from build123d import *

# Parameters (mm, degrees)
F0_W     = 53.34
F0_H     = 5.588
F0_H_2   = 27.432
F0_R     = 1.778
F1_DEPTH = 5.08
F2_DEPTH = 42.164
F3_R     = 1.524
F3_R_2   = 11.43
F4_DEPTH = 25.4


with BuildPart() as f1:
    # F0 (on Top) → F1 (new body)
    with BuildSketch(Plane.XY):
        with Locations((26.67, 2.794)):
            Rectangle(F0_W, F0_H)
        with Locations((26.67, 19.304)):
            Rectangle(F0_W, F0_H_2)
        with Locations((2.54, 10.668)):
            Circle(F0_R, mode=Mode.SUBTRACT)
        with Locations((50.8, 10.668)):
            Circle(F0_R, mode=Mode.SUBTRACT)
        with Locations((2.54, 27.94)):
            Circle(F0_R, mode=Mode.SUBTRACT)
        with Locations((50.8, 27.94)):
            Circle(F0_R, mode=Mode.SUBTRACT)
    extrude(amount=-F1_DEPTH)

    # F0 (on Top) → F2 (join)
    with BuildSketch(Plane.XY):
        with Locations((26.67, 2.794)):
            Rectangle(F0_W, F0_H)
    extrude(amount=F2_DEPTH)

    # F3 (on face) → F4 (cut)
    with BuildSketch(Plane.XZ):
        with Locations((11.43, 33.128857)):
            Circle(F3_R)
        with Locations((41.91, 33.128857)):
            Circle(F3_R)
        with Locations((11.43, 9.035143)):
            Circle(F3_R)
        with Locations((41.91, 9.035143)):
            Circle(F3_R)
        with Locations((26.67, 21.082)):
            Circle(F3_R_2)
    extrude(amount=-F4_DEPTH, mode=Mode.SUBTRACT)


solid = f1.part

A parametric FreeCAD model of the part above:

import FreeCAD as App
import Part
import Sketcher

V = App.Vector
Q = App.Units.Quantity


def add_polygon(sketch, points):
    """Adds a closed chain of lines whose ends are joined by coincident constraints."""
    first, n = sketch.GeometryCount, len(points)
    for a, b in zip(points, points[1:] + points[:1]):
        sketch.addGeometry(Part.LineSegment(App.Vector(*a, 0), App.Vector(*b, 0)), False)
    for i in range(n):
        sketch.addConstraint(Sketcher.Constraint("Coincident", first + i, 2, first + (i + 1) % n, 1))

doc = App.newDocument("Part")
body = doc.addObject("PartDesign::Body", "Body")

sketch1 = body.newObject("Sketcher::SketchObject", "Sketch")
sketch1.AttachmentSupport = (doc.getObject("XY_Plane"), [""])
sketch1.MapMode = "FlatFace"
add_polygon(sketch1, [(0, 0), (53.34, 0), (53.34, 33.02), (0, 33.02)])
sketch1.addGeometry(Part.Circle(V(2.54, 10.668, 0), V(0, 0, 1), 1.778), False)
sketch1.addGeometry(Part.Circle(V(50.8, 10.668, 0), V(0, 0, 1), 1.778), False)
sketch1.addGeometry(Part.Circle(V(2.54, 27.94, 0), V(0, 0, 1), 1.778), False)
sketch1.addGeometry(Part.Circle(V(50.8, 27.94, 0), V(0, 0, 1), 1.778), False)
sketch1.addConstraint(Sketcher.Constraint("Horizontal", 0))
sketch1.addConstraint(Sketcher.Constraint("Vertical", 1))
sketch1.addConstraint(Sketcher.Constraint("Horizontal", 2))
sketch1.addConstraint(Sketcher.Constraint("Vertical", 3))
sketch1.addConstraint(Sketcher.Constraint("Coincident", 3, 2, -1, 1))
sketch1.addConstraint(Sketcher.Constraint("Equal", 4, 5))
sketch1.addConstraint(Sketcher.Constraint("Equal", 5, 6))
sketch1.addConstraint(Sketcher.Constraint("Equal", 6, 7))
sketch1.addConstraint(Sketcher.Constraint("Horizontal", 4, 3, 5, 3))
sketch1.addConstraint(Sketcher.Constraint("Horizontal", 6, 3, 7, 3))
sketch1.addConstraint(Sketcher.Constraint("Vertical", 4, 3, 6, 3))
sketch1.addConstraint(Sketcher.Constraint("Vertical", 5, 3, 7, 3))
sketch1.addConstraint(Sketcher.Constraint("Diameter", 4, Q("0.14 in")))
sketch1.addConstraint(Sketcher.Constraint("DistanceX", 0, 1, 0, 2, Q("2.1 in")))
sketch1.addConstraint(Sketcher.Constraint("DistanceY", 1, 1, 1, 2, Q("1.3 in")))
sketch1.addConstraint(Sketcher.Constraint("DistanceX", -1, 1, 5, 3, Q("2 in")))
sketch1.addConstraint(Sketcher.Constraint("DistanceX", 4, 3, 0, 2, Q("2 in")))
sketch1.addConstraint(Sketcher.Constraint("DistanceY", -1, 1, 6, 3, Q("1.1 in")))
sketch1.addConstraint(Sketcher.Constraint("DistanceY", -1, 1, 4, 3, Q("0.42 in")))
pad1 = body.newObject("PartDesign::Pad", "Pad")
pad1.Profile = sketch1
pad1.Length = Q("0.2 in")
pad1.Reversed = True

sketch2 = body.newObject("Sketcher::SketchObject", "Sketch001")
sketch2.AttachmentSupport = (doc.getObject("XY_Plane"), [""])
sketch2.MapMode = "FlatFace"
add_polygon(sketch2, [(0, 5.588), (0, 0), (53.34, 0), (53.34, 5.588)])
sketch2.addConstraint(Sketcher.Constraint("Vertical", 0))
sketch2.addConstraint(Sketcher.Constraint("Horizontal", 1))
sketch2.addConstraint(Sketcher.Constraint("Vertical", 2))
sketch2.addConstraint(Sketcher.Constraint("Horizontal", 3))
sketch2.addConstraint(Sketcher.Constraint("Coincident", 0, 2, -1, 1))
sketch2.addConstraint(Sketcher.Constraint("DistanceX", 1, 1, 1, 2, Q("2.1 in")))
sketch2.addConstraint(Sketcher.Constraint("DistanceY", 0, 2, 0, 1, Q("0.22 in")))
pad2 = body.newObject("PartDesign::Pad", "Pad001")
pad2.Profile = sketch2
pad2.Length = Q("1.66 in")

sketch3 = body.newObject("Sketcher::SketchObject", "Sketch002")
sketch3.AttachmentSupport = (doc.getObject("XZ_Plane"), [""])
sketch3.MapMode = "FlatFace"
sketch3.addGeometry(Part.Circle(V(11.43, 33.128857, 0), V(0, 0, 1), 1.524), False)
sketch3.addGeometry(Part.Circle(V(41.91, 33.128857, 0), V(0, 0, 1), 1.524), False)
sketch3.addGeometry(Part.Circle(V(11.43, 9.035143, 0), V(0, 0, 1), 1.524), False)
sketch3.addGeometry(Part.Circle(V(41.91, 9.035143, 0), V(0, 0, 1), 1.524), False)
sketch3.addGeometry(Part.Circle(V(26.67, 21.082, 0), V(0, 0, 1), 11.43), False)
sketch3.addConstraint(Sketcher.Constraint("Equal", 0, 1))
sketch3.addConstraint(Sketcher.Constraint("Equal", 1, 2))
sketch3.addConstraint(Sketcher.Constraint("Equal", 2, 3))
sketch3.addConstraint(Sketcher.Constraint("Horizontal", 0, 3, 1, 3))
sketch3.addConstraint(Sketcher.Constraint("Horizontal", 2, 3, 3, 3))
sketch3.addConstraint(Sketcher.Constraint("Vertical", 0, 3, 2, 3))
sketch3.addConstraint(Sketcher.Constraint("Vertical", 1, 3, 3, 3))
sketch3.addConstraint(Sketcher.Constraint("Diameter", 4, Q("0.9 in")))
sketch3.addConstraint(Sketcher.Constraint("Diameter", 0, Q("0.12 in")))
sketch3.addConstraint(Sketcher.Constraint("DistanceX", 0, 3, 1, 3, Q("1.2 in")))
sketch3.addConstraint(Sketcher.Constraint("DistanceX", 4, 3, 3, 3, Q("0.6 in")))
sketch3.addConstraint(Sketcher.Constraint("DistanceX", -1, 1, 0, 3, Q("0.45 in")))
sketch3.addConstraint(Sketcher.Constraint("DistanceY", -1, 1, 4, 3, Q("0.83 in")))
sketch3.addConstraint(Sketcher.Constraint("DistanceY", -1, 1, 0, 3, Q("33.128857 mm")))
sketch3.addConstraint(Sketcher.Constraint("DistanceY", -1, 1, 2, 3, Q("9.035143 mm")))
pocket1 = body.newObject("PartDesign::Pocket", "Pocket")
pocket1.Profile = sketch3
pocket1.Length = Q("1 in")

doc.recompute()
